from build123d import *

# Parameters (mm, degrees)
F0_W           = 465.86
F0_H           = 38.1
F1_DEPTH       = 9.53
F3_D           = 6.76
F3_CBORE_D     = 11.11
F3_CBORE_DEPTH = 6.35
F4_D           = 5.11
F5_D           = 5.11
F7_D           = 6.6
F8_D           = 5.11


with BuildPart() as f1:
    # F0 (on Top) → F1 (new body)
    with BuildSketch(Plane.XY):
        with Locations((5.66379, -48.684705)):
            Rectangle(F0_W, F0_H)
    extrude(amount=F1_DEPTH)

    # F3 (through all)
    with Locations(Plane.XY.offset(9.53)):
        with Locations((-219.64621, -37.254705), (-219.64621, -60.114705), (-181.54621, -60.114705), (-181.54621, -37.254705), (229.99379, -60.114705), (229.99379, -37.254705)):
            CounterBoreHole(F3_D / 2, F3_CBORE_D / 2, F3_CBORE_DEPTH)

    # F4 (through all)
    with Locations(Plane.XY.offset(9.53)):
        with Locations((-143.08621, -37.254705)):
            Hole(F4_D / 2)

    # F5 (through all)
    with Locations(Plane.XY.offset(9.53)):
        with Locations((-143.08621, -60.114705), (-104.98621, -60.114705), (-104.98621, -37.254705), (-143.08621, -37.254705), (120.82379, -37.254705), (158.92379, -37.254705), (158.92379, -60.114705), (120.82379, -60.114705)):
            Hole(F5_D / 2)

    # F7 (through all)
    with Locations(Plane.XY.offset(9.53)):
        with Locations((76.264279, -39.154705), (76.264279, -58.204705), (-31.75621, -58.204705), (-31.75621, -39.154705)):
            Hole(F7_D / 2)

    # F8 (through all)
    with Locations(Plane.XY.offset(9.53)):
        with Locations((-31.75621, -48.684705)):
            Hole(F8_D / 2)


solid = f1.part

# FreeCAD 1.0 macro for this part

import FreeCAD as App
import Part
import Sketcher
from FreeCAD import Vector

doc = App.newDocument("Part")
body = doc.addObject("PartDesign::Body", "Body")

sketch1 = body.newObject("Sketcher::SketchObject", "Sketch")
sketch1.AttachmentSupport = (doc.getObject("XY_Plane"), [""])
sketch1.MapMode = "FlatFace"
sketch1.addGeometry([
    Part.LineSegment(Vector(-227, -30, 0), Vector(-227, -68, 0)),
    Part.LineSegment(Vector(-227, -68, 0), Vector(239, -68, 0)),
    Part.LineSegment(Vector(239, -68, 0), Vector(239, -30, 0)),
    Part.LineSegment(Vector(239, -30, 0), Vector(-227, -30, 0)),
], False)
sketch1.addConstraint([
    Sketcher.Constraint("Coincident", 0, 2, 1, 1),
    Sketcher.Constraint("Coincident", 1, 2, 2, 1),
    Sketcher.Constraint("Coincident", 2, 2, 3, 1),
    Sketcher.Constraint("Coincident", 3, 2, 0, 1),
    Sketcher.Constraint("Vertical", 0),
    Sketcher.Constraint("Horizontal", 1),
    Sketcher.Constraint("Vertical", 2),
    Sketcher.Constraint("Horizontal", 3),
    Sketcher.Constraint("DistanceY", 0, 2, 0, 1, 38.1),
    Sketcher.Constraint("DistanceX", 1, 1, 1, 2, 465.86),
    Sketcher.Constraint("DistanceX", 0, 2, -1, 1, 227.26621),
    Sketcher.Constraint("DistanceY", 0, 2, -1, 1, 67.734705),
])
pad1 = body.newObject("PartDesign::Pad", "Pad")
pad1.Profile = sketch1
pad1.Length = 9.53

sketch2 = body.newObject("Sketcher::SketchObject", "Sketch001")
sketch2.AttachmentSupport = (doc.getObject("XY_Plane"), [""])
sketch2.MapMode = "FlatFace"
sketch2.AttachmentOffset = App.Placement(Vector(0, 0, 9.53), App.Rotation())
sketch2.addGeometry([
    Part.Circle(Vector(-219.6, -37.3, 0), Vector(0, 0, 1), 3.4),
    Part.Circle(Vector(-219.6, -60.1, 0), Vector(0, 0, 1), 3.4),
    Part.Circle(Vector(-181.5, -60.1, 0), Vector(0, 0, 1), 3.4),
    Part.Circle(Vector(-181.5, -37.3, 0), Vector(0, 0, 1), 3.4),
    Part.Circle(Vector(230, -60.1, 0), Vector(0, 0, 1), 3.4),
    Part.Circle(Vector(230, -37.3, 0), Vector(0, 0, 1), 3.4),
], False)
sketch2.addConstraint([
    Sketcher.Constraint("Equal", 0, 1),
    Sketcher.Constraint("Equal", 1, 2),
    Sketcher.Constraint("Equal", 2, 3),
    Sketcher.Constraint("Equal", 3, 4),
    Sketcher.Constraint("Equal", 4, 5),
    Sketcher.Constraint("Horizontal", 1, 3, 2, 3),
    Sketcher.Constraint("Horizontal", 0, 3, 3, 3),
    Sketcher.Constraint("Horizontal", 2, 3, 4, 3),
    Sketcher.Constraint("Horizontal", 3, 3, 5, 3),
    Sketcher.Constraint("Vertical", 0, 3, 1, 3),
    Sketcher.Constraint("Vertical", 2, 3, 3, 3),
    Sketcher.Constraint("Vertical", 4, 3, 5, 3),
    Sketcher.Constraint("Diameter", 0, 6.76),
    Sketcher.Constraint("DistanceX", 1, 3, 2, 3, 38.1),
    Sketcher.Constraint("DistanceY", 1, 3, 0, 3, 22.86),
    Sketcher.Constraint("DistanceX", 2, 3, 4, 3, 411.54),
    Sketcher.Constraint("DistanceX", 0, 3, -1, 1, 219.64621),
    Sketcher.Constraint("DistanceY", 0, 3, -1, 1, 37.254705),
])
doc.recompute()
hole = body.newObject("PartDesign::Hole", "Hole")
hole.Profile = sketch2
hole.ThreadType = "None"
hole.Diameter = 6.76
hole.DepthType = "ThroughAll"
hole.HoleCutType = "Counterbore"
hole.HoleCutDiameter = 11.11
hole.HoleCutDepth = 6.35

sketch3 = body.newObject("Sketcher::SketchObject", "Sketch002")
sketch3.AttachmentSupport = (doc.getObject("XY_Plane"), [""])
sketch3.MapMode = "FlatFace"
sketch3.AttachmentOffset = App.Placement(Vector(0, 0, 9.53), App.Rotation())
sketch3.addGeometry(Part.Circle(Vector(-143.1, -37.3, 0), Vector(0, 0, 1), 2.6), False)
sketch3.addConstraint([
    Sketcher.Constraint("Diameter", 0, 5.11),
    Sketcher.Constraint("DistanceX", 0, 3, -1, 1, 143.08621),
    Sketcher.Constraint("DistanceY", 0, 3, -1, 1, 37.254705),
])
doc.recompute()
hole2 = body.newObject("PartDesign::Hole", "Hole001")
hole2.Profile = sketch3
hole2.ThreadType = "None"
hole2.Diameter = 5.11
hole2.DepthType = "ThroughAll"

sketch4 = body.newObject("Sketcher::SketchObject", "Sketch003")
sketch4.AttachmentSupport = (doc.getObject("XY_Plane"), [""])
sketch4.MapMode = "FlatFace"
sketch4.AttachmentOffset = App.Placement(Vector(0, 0, 9.53), App.Rotation())
sketch4.addGeometry([
    Part.Circle(Vector(-143.1, -60.1, 0), Vector(0, 0, 1), 2.6),
    Part.Circle(Vector(-105, -60.1, 0), Vector(0, 0, 1), 2.6),
    Part.Circle(Vector(-105, -37.3, 0), Vector(0, 0, 1), 2.6),
    Part.Circle(Vector(-143.1, -37.3, 0), Vector(0, 0, 1), 2.6),
    Part.Circle(Vector(120.8, -37.3, 0), Vector(0, 0, 1), 2.6),
    Part.Circle(Vector(158.9, -37.3, 0), Vector(0, 0, 1), 2.6),
    Part.Circle(Vector(158.9, -60.1, 0), Vector(0, 0, 1), 2.6),
    Part.Circle(Vector(120.8, -60.1, 0), Vector(0, 0, 1), 2.6),
], False)
sketch4.addConstraint([
    Sketcher.Constraint("Equal", 0, 1),
    Sketcher.Constraint("Equal", 1, 2),
    Sketcher.Constraint("Equal", 2, 3),
    Sketcher.Constraint("Equal", 3, 4),
    Sketcher.Constraint("Equal", 4, 5),
    Sketcher.Constraint("Equal", 5, 6),
    Sketcher.Constraint("Equal", 6, 7),
    Sketcher.Constraint("Horizontal", 0, 3, 1, 3),
    Sketcher.Constraint("Horizontal", 2, 3, 3, 3),
    Sketcher.Constraint("Horizontal", 3, 3, 4, 3),
    Sketcher.Constraint("Horizontal", 4, 3, 5, 3),
    Sketcher.Constraint("Horizontal", 1, 3, 6, 3),
    Sketcher.Constraint("Horizontal", 6, 3, 7, 3),
    Sketcher.Constraint("Vertical", 1, 3, 2, 3),
    Sketcher.Constraint("Vertical", 0, 3, 3, 3),
    Sketcher.Constraint("Vertical", 5, 3, 6, 3),
    Sketcher.Constraint("Vertical", 4, 3, 7, 3),
    Sketcher.Constraint("Diameter", 0, 5.11),
    Sketcher.Constraint("DistanceX", 0, 3, 1, 3, 38.1),
    Sketcher.Constraint("DistanceX", 4, 3, 5, 3, 38.1),
    Sketcher.Constraint("DistanceY", 1, 3, 2, 3, 22.86),
    Sketcher.Constraint("DistanceX", 2, 3, 4, 3, 225.81),
    Sketcher.Constraint("DistanceX", 0, 3, -1, 1, 143.08621),
    Sketcher.Constraint("DistanceY", 0, 3, -1, 1, 60.114705),
])
doc.recompute()
hole3 = body.newObject("PartDesign::Hole", "Hole002")
hole3.Profile = sketch4
hole3.ThreadType = "None"
hole3.Diameter = 5.11
hole3.DepthType = "ThroughAll"

sketch5 = body.newObject("Sketcher::SketchObject", "Sketch004")
sketch5.AttachmentSupport = (doc.getObject("XY_Plane"), [""])
sketch5.MapMode = "FlatFace"
sketch5.AttachmentOffset = App.Placement(Vector(0, 0, 9.53), App.Rotation())
sketch5.addGeometry([
    Part.Circle(Vector(76.3, -39.2, 0), Vector(0, 0, 1), 3.3),
    Part.Circle(Vector(76.3, -58.2, 0), Vector(0, 0, 1), 3.3),
    Part.Circle(Vector(-31.8, -58.2, 0), Vector(0, 0, 1), 3.3),
    Part.Circle(Vector(-31.8, -39.2, 0), Vector(0, 0, 1), 3.3),
], False)
sketch5.addConstraint([
    Sketcher.Constraint("Equal", 0, 1),
    Sketcher.Constraint("Equal", 1, 2),
    Sketcher.Constraint("Equal", 2, 3),
    Sketcher.Constraint("Horizontal", 1, 3, 2, 3),
    Sketcher.Constraint("Horizontal", 0, 3, 3, 3),
    Sketcher.Constraint("Vertical", 0, 3, 1, 3),
    Sketcher.Constraint("Vertical", 2, 3, 3, 3),
    Sketcher.Constraint("Diameter", 0, 6.6),
    Sketcher.Constraint("DistanceY", 1, 3, 0, 3, 19.05),
    Sketcher.Constraint("DistanceX", -1, 1, 0, 3, 76.264279),
    Sketcher.Constraint("DistanceX", 2, 3, -1, 1, 31.75621),
    Sketcher.Constraint("DistanceY", 0, 3, -1, 1, 39.154705),
])
doc.recompute()
hole4 = body.newObject("PartDesign::Hole", "Hole003")
hole4.Profile = sketch5
hole4.ThreadType = "None"
hole4.Diameter = 6.6
hole4.DepthType = "ThroughAll"

sketch6 = body.newObject("Sketcher::SketchObject", "Sketch005")
sketch6.AttachmentSupport = (doc.getObject("XY_Plane"), [""])
sketch6.MapMode = "FlatFace"
sketch6.AttachmentOffset = App.Placement(Vector(0, 0, 9.53), App.Rotation())
sketch6.addGeometry(Part.Circle(Vector(-31.8, -48.7, 0), Vector(0, 0, 1), 2.6), False)
sketch6.addConstraint([
    Sketcher.Constraint("Diameter", 0, 5.11),
    Sketcher.Constraint("DistanceX", 0, 3, -1, 1, 31.75621),
    Sketcher.Constraint("DistanceY", 0, 3, -1, 1, 48.684705),
])
doc.recompute()
hole5 = body.newObject("PartDesign::Hole", "Hole004")
hole5.Profile = sketch6
hole5.ThreadType = "None"
hole5.Diameter = 5.11
hole5.DepthType = "ThroughAll"

doc.recompute()
